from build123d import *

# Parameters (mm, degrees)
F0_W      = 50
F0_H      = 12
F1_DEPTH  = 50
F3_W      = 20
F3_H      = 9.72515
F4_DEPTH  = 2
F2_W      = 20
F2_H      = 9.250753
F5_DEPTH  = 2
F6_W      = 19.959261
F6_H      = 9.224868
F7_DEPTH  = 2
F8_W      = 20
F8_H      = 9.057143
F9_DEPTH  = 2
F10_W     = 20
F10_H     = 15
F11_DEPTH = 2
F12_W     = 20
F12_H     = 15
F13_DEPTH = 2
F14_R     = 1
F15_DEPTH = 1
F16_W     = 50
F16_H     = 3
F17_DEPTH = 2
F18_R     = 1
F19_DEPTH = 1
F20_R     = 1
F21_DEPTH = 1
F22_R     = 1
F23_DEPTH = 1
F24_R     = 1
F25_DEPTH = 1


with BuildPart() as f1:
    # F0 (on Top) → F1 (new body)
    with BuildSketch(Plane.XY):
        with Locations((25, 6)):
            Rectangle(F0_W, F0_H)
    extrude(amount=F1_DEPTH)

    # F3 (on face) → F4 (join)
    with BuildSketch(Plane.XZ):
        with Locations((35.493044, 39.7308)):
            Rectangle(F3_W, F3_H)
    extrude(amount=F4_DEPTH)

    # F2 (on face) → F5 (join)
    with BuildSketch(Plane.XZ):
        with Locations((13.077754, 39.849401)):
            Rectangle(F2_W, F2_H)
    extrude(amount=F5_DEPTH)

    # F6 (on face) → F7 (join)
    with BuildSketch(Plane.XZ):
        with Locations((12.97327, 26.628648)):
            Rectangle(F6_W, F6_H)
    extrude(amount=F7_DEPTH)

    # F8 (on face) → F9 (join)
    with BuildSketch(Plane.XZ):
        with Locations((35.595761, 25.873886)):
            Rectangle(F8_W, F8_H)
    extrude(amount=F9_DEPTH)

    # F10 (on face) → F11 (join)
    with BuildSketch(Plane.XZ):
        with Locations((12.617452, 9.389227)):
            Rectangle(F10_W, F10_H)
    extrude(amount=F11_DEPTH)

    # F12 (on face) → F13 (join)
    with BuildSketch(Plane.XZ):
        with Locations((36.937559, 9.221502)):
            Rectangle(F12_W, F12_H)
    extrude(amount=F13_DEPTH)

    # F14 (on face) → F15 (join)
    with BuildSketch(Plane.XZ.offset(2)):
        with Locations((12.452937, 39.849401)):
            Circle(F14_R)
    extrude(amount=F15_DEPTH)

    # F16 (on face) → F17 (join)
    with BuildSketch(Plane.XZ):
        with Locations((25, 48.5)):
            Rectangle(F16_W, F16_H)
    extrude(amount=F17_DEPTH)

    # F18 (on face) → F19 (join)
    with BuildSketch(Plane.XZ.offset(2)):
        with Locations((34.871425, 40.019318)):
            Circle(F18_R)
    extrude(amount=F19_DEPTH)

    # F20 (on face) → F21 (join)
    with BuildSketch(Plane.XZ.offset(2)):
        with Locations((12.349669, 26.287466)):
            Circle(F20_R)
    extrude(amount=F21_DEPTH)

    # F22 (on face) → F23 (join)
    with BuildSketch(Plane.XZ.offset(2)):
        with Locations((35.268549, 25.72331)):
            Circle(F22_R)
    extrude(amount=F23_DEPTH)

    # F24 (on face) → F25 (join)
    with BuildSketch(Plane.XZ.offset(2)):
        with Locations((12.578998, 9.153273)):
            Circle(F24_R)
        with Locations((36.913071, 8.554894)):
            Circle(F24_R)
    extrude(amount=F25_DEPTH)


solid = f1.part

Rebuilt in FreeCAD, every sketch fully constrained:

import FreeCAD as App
import Part
import Sketcher

V = App.Vector

doc = App.newDocument("Part")
body = doc.addObject("PartDesign::Body", "Body")

sketch1 = body.newObject("Sketcher::SketchObject", "Sketch")
sketch1.AttachmentSupport = (doc.getObject("XY_Plane"), [""])
sketch1.MapMode = "FlatFace"
sketch1.addGeometry(Part.LineSegment(V(0, 12, 0), V(0, 0, 0)), False)
sketch1.addGeometry(Part.LineSegment(V(0, 0, 0), V(50, 0, 0)), False)
sketch1.addGeometry(Part.LineSegment(V(50, 0, 0), V(50, 12, 0)), False)
sketch1.addGeometry(Part.LineSegment(V(50, 12, 0), V(0, 12, 0)), False)
sketch1.addConstraint(Sketcher.Constraint("Coincident", 0, 2, 1, 1))
sketch1.addConstraint(Sketcher.Constraint("Coincident", 1, 2, 2, 1))
sketch1.addConstraint(Sketcher.Constraint("Coincident", 2, 2, 3, 1))
sketch1.addConstraint(Sketcher.Constraint("Coincident", 3, 2, 0, 1))
sketch1.addConstraint(Sketcher.Constraint("Vertical", 0))
sketch1.addConstraint(Sketcher.Constraint("Horizontal", 1))
sketch1.addConstraint(Sketcher.Constraint("Vertical", 2))
sketch1.addConstraint(Sketcher.Constraint("Horizontal", 3))
sketch1.addConstraint(Sketcher.Constraint("Coincident", 0, 2, -1, 1))
sketch1.addConstraint(Sketcher.Constraint("DistanceX", 1, 1, 1, 2, 50.0))
sketch1.addConstraint(Sketcher.Constraint("DistanceY", 0, 2, 0, 1, 12.0))
pad1 = body.newObject("PartDesign::Pad", "Pad")
pad1.Profile = sketch1
pad1.Length = 50

sketch2 = body.newObject("Sketcher::SketchObject", "Sketch001")
sketch2.AttachmentSupport = (doc.getObject("XZ_Plane"), [""])
sketch2.MapMode = "FlatFace"
sketch2.addGeometry(Part.LineSegment(V(25, 45, 0), V(25, 35, 0)), False)
sketch2.addGeometry(Part.LineSegment(V(25, 35, 0), V(45, 35, 0)), False)
sketch2.addGeometry(Part.LineSegment(V(45, 35, 0), V(45, 45, 0)), False)
sketch2.addGeometry(Part.LineSegment(V(45, 45, 0), V(25, 45, 0)), False)
sketch2.addConstraint(Sketcher.Constraint("Coincident", 0, 2, 1, 1))
sketch2.addConstraint(Sketcher.Constraint("Coincident", 1, 2, 2, 1))
sketch2.addConstraint(Sketcher.Constraint("Coincident", 2, 2, 3, 1))
sketch2.addConstraint(Sketcher.Constraint("Coincident", 3, 2, 0, 1))
sketch2.addConstraint(Sketcher.Constraint("Vertical", 0))
sketch2.addConstraint(Sketcher.Constraint("Horizontal", 1))
sketch2.addConstraint(Sketcher.Constraint("Vertical", 2))
sketch2.addConstraint(Sketcher.Constraint("Horizontal", 3))
sketch2.addConstraint(Sketcher.Constraint("DistanceX", 1, 1, 1, 2, 20.0))
sketch2.addConstraint(Sketcher.Constraint("DistanceY", 0, 2, 0, 1, 9.72515))
sketch2.addConstraint(Sketcher.Constraint("DistanceX", -1, 1, 0, 2, 25.493044))
sketch2.addConstraint(Sketcher.Constraint("DistanceY", -1, 1, 0, 2, 34.868225))
pad2 = body.newObject("PartDesign::Pad", "Pad001")
pad2.Profile = sketch2
pad2.Length = 2

sketch3 = body.newObject("Sketcher::SketchObject", "Sketch002")
sketch3.AttachmentSupport = (doc.getObject("XZ_Plane"), [""])
sketch3.MapMode = "FlatFace"
sketch3.addGeometry(Part.LineSegment(V(3, 44, 0), V(3, 35, 0)), False)
sketch3.addGeometry(Part.LineSegment(V(3, 35, 0), V(23, 35, 0)), False)
sketch3.addGeometry(Part.LineSegment(V(23, 35, 0), V(23, 44, 0)), False)
sketch3.addGeometry(Part.LineSegment(V(23, 44, 0), V(3, 44, 0)), False)
sketch3.addConstraint(Sketcher.Constraint("Coincident", 0, 2, 1, 1))
sketch3.addConstraint(Sketcher.Constraint("Coincident", 1, 2, 2, 1))
sketch3.addConstraint(Sketcher.Constraint("Coincident", 2, 2, 3, 1))
sketch3.addConstraint(Sketcher.Constraint("Coincident", 3, 2, 0, 1))
sketch3.addConstraint(Sketcher.Constraint("Vertical", 0))
sketch3.addConstraint(Sketcher.Constraint("Horizontal", 1))
sketch3.addConstraint(Sketcher.Constraint("Vertical", 2))
sketch3.addConstraint(Sketcher.Constraint("Horizontal", 3))
sketch3.addConstraint(Sketcher.Constraint("DistanceX", 1, 1, 1, 2, 20.0))
sketch3.addConstraint(Sketcher.Constraint("DistanceY", 0, 2, 0, 1, 9.250753))
sketch3.addConstraint(Sketcher.Constraint("DistanceX", -1, 1, 0, 2, 3.077754))
sketch3.addConstraint(Sketcher.Constraint("DistanceY", -1, 1, 0, 2, 35.224024))
pad3 = body.newObject("PartDesign::Pad", "Pad002")
pad3.Profile = sketch3
pad3.Length = 2

sketch4 = body.newObject("Sketcher::SketchObject", "Sketch003")
sketch4.AttachmentSupport = (doc.getObject("XZ_Plane"), [""])
sketch4.MapMode = "FlatFace"
sketch4.addGeometry(Part.LineSegment(V(3, 31, 0), V(3, 22, 0)), False)
sketch4.addGeometry(Part.LineSegment(V(3, 22, 0), V(23, 22, 0)), False)
sketch4.addGeometry(Part.LineSegment(V(23, 22, 0), V(23, 31, 0)), False)
sketch4.addGeometry(Part.LineSegment(V(23, 31, 0), V(3, 31, 0)), False)
sketch4.addConstraint(Sketcher.Constraint("Coincident", 0, 2, 1, 1))
sketch4.addConstraint(Sketcher.Constraint("Coincident", 1, 2, 2, 1))
sketch4.addConstraint(Sketcher.Constraint("Coincident", 2, 2, 3, 1))
sketch4.addConstraint(Sketcher.Constraint("Coincident", 3, 2, 0, 1))
sketch4.addConstraint(Sketcher.Constraint("Vertical", 0))
sketch4.addConstraint(Sketcher.Constraint("Horizontal", 1))
sketch4.addConstraint(Sketcher.Constraint("Vertical", 2))
sketch4.addConstraint(Sketcher.Constraint("Horizontal", 3))
sketch4.addConstraint(Sketcher.Constraint("DistanceX", 1, 1, 1, 2, 19.959261))
sketch4.addConstraint(Sketcher.Constraint("DistanceX", -1, 1, 1, 2, 22.9529))
sketch4.addConstraint(Sketcher.Constraint("DistanceY", 0, 2, 0, 1, 9.224868))
sketch4.addConstraint(Sketcher.Constraint("DistanceY", -1, 1, 2, 2, 31.241082))
pad4 = body.newObject("PartDesign::Pad", "Pad003")
pad4.Profile = sketch4
pad4.Length = 2

sketch5 = body.newObject("Sketcher::SketchObject", "Sketch004")
sketch5.AttachmentSupport = (doc.getObject("XZ_Plane"), [""])
sketch5.MapMode = "FlatFace"
sketch5.addGeometry(Part.LineSegment(V(26, 30, 0), V(26, 21, 0)), False)
sketch5.addGeometry(Part.LineSegment(V(26, 21, 0), V(46, 21, 0)), False)
sketch5.addGeometry(Part.LineSegment(V(46, 21, 0), V(46, 30, 0)), False)
sketch5.addGeometry(Part.LineSegment(V(46, 30, 0), V(26, 30, 0)), False)
sketch5.addConstraint(Sketcher.Constraint("Coincident", 0, 2, 1, 1))
sketch5.addConstraint(Sketcher.Constraint("Coincident", 1, 2, 2, 1))
sketch5.addConstraint(Sketcher.Constraint("Coincident", 2, 2, 3, 1))
sketch5.addConstraint(Sketcher.Constraint("Coincident", 3, 2, 0, 1))
sketch5.addConstraint(Sketcher.Constraint("Vertical", 0))
sketch5.addConstraint(Sketcher.Constraint("Horizontal", 1))
sketch5.addConstraint(Sketcher.Constraint("Vertical", 2))
sketch5.addConstraint(Sketcher.Constraint("Horizontal", 3))
sketch5.addConstraint(Sketcher.Constraint("DistanceX", 1, 1, 1, 2, 20.0))
sketch5.addConstraint(Sketcher.Constraint("DistanceY", 0, 2, 0, 1, 9.057143))
sketch5.addConstraint(Sketcher.Constraint("DistanceX", -1, 1, 0, 2, 25.595761))
sketch5.addConstraint(Sketcher.Constraint("DistanceY", -1, 1, 0, 2, 21.345315))
pad5 = body.newObject("PartDesign::Pad", "Pad004")
pad5.Profile = sketch5
pad5.Length = 2

sketch6 = body.newObject("Sketcher::SketchObject", "Sketch005")
sketch6.AttachmentSupport = (doc.getObject("XZ_Plane"), [""])
sketch6.MapMode = "FlatFace"
sketch6.addGeometry(Part.LineSegment(V(3, 17, 0), V(3, 2, 0)), False)
sketch6.addGeometry(Part.LineSegment(V(3, 2, 0), V(23, 2, 0)), False)
sketch6.addGeometry(Part.LineSegment(V(23, 2, 0), V(23, 17, 0)), False)
sketch6.addGeometry(Part.LineSegment(V(23, 17, 0), V(3, 17, 0)), False)
sketch6.addConstraint(Sketcher.Constraint("Coincident", 0, 2, 1, 1))
sketch6.addConstraint(Sketcher.Constraint("Coincident", 1, 2, 2, 1))
sketch6.addConstraint(Sketcher.Constraint("Coincident", 2, 2, 3, 1))
sketch6.addConstraint(Sketcher.Constraint("Coincident", 3, 2, 0, 1))
sketch6.addConstraint(Sketcher.Constraint("Vertical", 0))
sketch6.addConstraint(Sketcher.Constraint("Horizontal", 1))
sketch6.addConstraint(Sketcher.Constraint("Vertical", 2))
sketch6.addConstraint(Sketcher.Constraint("Horizontal", 3))
sketch6.addConstraint(Sketcher.Constraint("DistanceX", 1, 1, 1, 2, 20.0))
sketch6.addConstraint(Sketcher.Constraint("DistanceY", 0, 2, 0, 1, 15.0))
sketch6.addConstraint(Sketcher.Constraint("DistanceX", -1, 1, 1, 2, 22.617452))
sketch6.addConstraint(Sketcher.Constraint("DistanceY", -1, 1, 0, 2, 1.889227))
pad6 = body.newObject("PartDesign::Pad", "Pad005")
pad6.Profile = sketch6
pad6.Length = 2

sketch7 = body.newObject("Sketcher::SketchObject", "Sketch006")
sketch7.AttachmentSupport = (doc.getObject("XZ_Plane"), [""])
sketch7.MapMode = "FlatFace"
sketch7.addGeometry(Part.LineSegment(V(27, 17, 0), V(27, 2, 0)), False)
sketch7.addGeometry(Part.LineSegment(V(27, 2, 0), V(47, 2, 0)), False)
sketch7.addGeometry(Part.LineSegment(V(47, 2, 0), V(47, 17, 0)), False)
sketch7.addGeometry(Part.LineSegment(V(47, 17, 0), V(27, 17, 0)), False)
sketch7.addConstraint(Sketcher.Constraint("Coincident", 0, 2, 1, 1))
sketch7.addConstraint(Sketcher.Constraint("Coincident", 1, 2, 2, 1))
sketch7.addConstraint(Sketcher.Constraint("Coincident", 2, 2, 3, 1))
sketch7.addConstraint(Sketcher.Constraint("Coincident", 3, 2, 0, 1))
sketch7.addConstraint(Sketcher.Constraint("Vertical", 0))
sketch7.addConstraint(Sketcher.Constraint("Horizontal", 1))
sketch7.addConstraint(Sketcher.Constraint("Vertical", 2))
sketch7.addConstraint(Sketcher.Constraint("Horizontal", 3))
sketch7.addConstraint(Sketcher.Constraint("DistanceX", 1, 1, 1, 2, 20.0))
sketch7.addConstraint(Sketcher.Constraint("DistanceY", 0, 2, 0, 1, 15.0))
sketch7.addConstraint(Sketcher.Constraint("DistanceX", -1, 1, 0, 2, 26.937559))
sketch7.addConstraint(Sketcher.Constraint("DistanceY", -1, 1, 0, 2, 1.721502))
pad7 = body.newObject("PartDesign::Pad", "Pad006")
pad7.Profile = sketch7
pad7.Length = 2

sketch8 = body.newObject("Sketcher::SketchObject", "Sketch007")
sketch8.AttachmentSupport = (doc.getObject("XZ_Plane"), [""])
sketch8.MapMode = "FlatFace"
sketch8.AttachmentOffset = App.Placement(V(0, 0, 2), App.Rotation())
sketch8.addGeometry(Part.Circle(V(12.5, 39.8, 0), V(0, 0, 1), 1), False)
sketch8.addConstraint(Sketcher.Constraint("Diameter", 0, 2.0))
sketch8.addConstraint(Sketcher.Constraint("DistanceY", -1, 1, 0, 3, 39.849401))
sketch8.addConstraint(Sketcher.Constraint("DistanceX", -1, 1, 0, 3, 12.452937))
pad8 = body.newObject("PartDesign::Pad", "Pad007")
pad8.Profile = sketch8
pad8.Length = 1

sketch9 = body.newObject("Sketcher::SketchObject", "Sketch008")
sketch9.AttachmentSupport = (doc.getObject("XZ_Plane"), [""])
sketch9.MapMode = "FlatFace"
sketch9.addGeometry(Part.LineSegment(V(0, 50, 0), V(0, 47, 0)), False)
sketch9.addGeometry(Part.LineSegment(V(0, 47, 0), V(50, 47, 0)), False)
sketch9.addGeometry(Part.LineSegment(V(50, 47, 0), V(50, 50, 0)), False)
sketch9.addGeometry(Part.LineSegment(V(50, 50, 0), V(0, 50, 0)), False)
sketch9.addConstraint(Sketcher.Constraint("Coincident", 0, 2, 1, 1))
sketch9.addConstraint(Sketcher.Constraint("Coincident", 1, 2, 2, 1))
sketch9.addConstraint(Sketcher.Constraint("Coincident", 2, 2, 3, 1))
sketch9.addConstraint(Sketcher.Constraint("Coincident", 3, 2, 0, 1))
sketch9.addConstraint(Sketcher.Constraint("Vertical", 0))
sketch9.addConstraint(Sketcher.Constraint("Horizontal", 1))
sketch9.addConstraint(Sketcher.Constraint("Vertical", 2))
sketch9.addConstraint(Sketcher.Constraint("Horizontal", 3))
sketch9.addConstraint(Sketcher.Constraint("PointOnObject", 0, 2, -2))
sketch9.addConstraint(Sketcher.Constraint("DistanceX", 1, 1, 1, 2, 50.0))
sketch9.addConstraint(Sketcher.Constraint("DistanceY", 0, 2, 0, 1, 3.0))
sketch9.addConstraint(Sketcher.Constraint("DistanceY", -1, 1, 0, 2, 47.0))
pad9 = body.newObject("PartDesign::Pad", "Pad008")
pad9.Profile = sketch9
pad9.Length = 2

sketch10 = body.newObject("Sketcher::SketchObject", "Sketch009")
sketch10.AttachmentSupport = (doc.getObject("XZ_Plane"), [""])
sketch10.MapMode = "FlatFace"
sketch10.AttachmentOffset = App.Placement(V(0, 0, 2), App.Rotation())
sketch10.addGeometry(Part.Circle(V(34.9, 40, 0), V(0, 0, 1), 1), False)
sketch10.addConstraint(Sketcher.Constraint("Diameter", 0, 2.0))
sketch10.addConstraint(Sketcher.Constraint("DistanceX", -1, 1, 0, 3, 34.871425))
sketch10.addConstraint(Sketcher.Constraint("DistanceY", -1, 1, 0, 3, 40.019318))
pad10 = body.newObject("PartDesign::Pad", "Pad009")
pad10.Profile = sketch10
pad10.Length = 1

sketch11 = body.newObject("Sketcher::SketchObject", "Sketch010")
sketch11.AttachmentSupport = (doc.getObject("XZ_Plane"), [""])
sketch11.MapMode = "FlatFace"
sketch11.AttachmentOffset = App.Placement(V(0, 0, 2), App.Rotation())
sketch11.addGeometry(Part.Circle(V(12.3, 26.3, 0), V(0, 0, 1), 1), False)
sketch11.addConstraint(Sketcher.Constraint("Diameter", 0, 2.0))
sketch11.addConstraint(Sketcher.Constraint("DistanceX", -1, 1, 0, 3, 12.349669))
sketch11.addConstraint(Sketcher.Constraint("DistanceY", -1, 1, 0, 3, 26.287466))
pad11 = body.newObject("PartDesign::Pad", "Pad010")
pad11.Profile = sketch11
pad11.Length = 1

sketch12 = body.newObject("Sketcher::SketchObject", "Sketch011")
sketch12.AttachmentSupport = (doc.getObject("XZ_Plane"), [""])
sketch12.MapMode = "FlatFace"
sketch12.AttachmentOffset = App.Placement(V(0, 0, 2), App.Rotation())
sketch12.addGeometry(Part.Circle(V(35.3, 25.7, 0), V(0, 0, 1), 1), False)
sketch12.addConstraint(Sketcher.Constraint("Diameter", 0, 2.0))
sketch12.addConstraint(Sketcher.Constraint("DistanceX", -1, 1, 0, 3, 35.268549))
sketch12.addConstraint(Sketcher.Constraint("DistanceY", -1, 1, 0, 3, 25.72331))
pad12 = body.newObject("PartDesign::Pad", "Pad011")
pad12.Profile = sketch12
pad12.Length = 1

sketch13 = body.newObject("Sketcher::SketchObject", "Sketch012")
sketch13.AttachmentSupport = (doc.getObject("XZ_Plane"), [""])
sketch13.MapMode = "FlatFace"
sketch13.AttachmentOffset = App.Placement(V(0, 0, 2), App.Rotation())
sketch13.addGeometry(Part.Circle(V(12.6, 9.2, 0), V(0, 0, 1), 1), False)
sketch13.addGeometry(Part.Circle(V(36.9, 8.6, 0), V(0, 0, 1), 1), False)
sketch13.addConstraint(Sketcher.Constraint("Equal", 0, 1))
sketch13.addConstraint(Sketcher.Constraint("Diameter", 0, 2.0))
sketch13.addConstraint(Sketcher.Constraint("DistanceX", -1, 1, 1, 3, 36.913071))
sketch13.addConstraint(Sketcher.Constraint("DistanceY", 1, 3, 0, 3, 0.598379))
sketch13.addConstraint(Sketcher.Constraint("DistanceX", -1, 1, 0, 3, 12.578998))
sketch13.addConstraint(Sketcher.Constraint("DistanceY", -1, 1, 0, 3, 9.153273))
pad13 = body.newObject("PartDesign::Pad", "Pad012")
pad13.Profile = sketch13
pad13.Length = 1

doc.recompute()
